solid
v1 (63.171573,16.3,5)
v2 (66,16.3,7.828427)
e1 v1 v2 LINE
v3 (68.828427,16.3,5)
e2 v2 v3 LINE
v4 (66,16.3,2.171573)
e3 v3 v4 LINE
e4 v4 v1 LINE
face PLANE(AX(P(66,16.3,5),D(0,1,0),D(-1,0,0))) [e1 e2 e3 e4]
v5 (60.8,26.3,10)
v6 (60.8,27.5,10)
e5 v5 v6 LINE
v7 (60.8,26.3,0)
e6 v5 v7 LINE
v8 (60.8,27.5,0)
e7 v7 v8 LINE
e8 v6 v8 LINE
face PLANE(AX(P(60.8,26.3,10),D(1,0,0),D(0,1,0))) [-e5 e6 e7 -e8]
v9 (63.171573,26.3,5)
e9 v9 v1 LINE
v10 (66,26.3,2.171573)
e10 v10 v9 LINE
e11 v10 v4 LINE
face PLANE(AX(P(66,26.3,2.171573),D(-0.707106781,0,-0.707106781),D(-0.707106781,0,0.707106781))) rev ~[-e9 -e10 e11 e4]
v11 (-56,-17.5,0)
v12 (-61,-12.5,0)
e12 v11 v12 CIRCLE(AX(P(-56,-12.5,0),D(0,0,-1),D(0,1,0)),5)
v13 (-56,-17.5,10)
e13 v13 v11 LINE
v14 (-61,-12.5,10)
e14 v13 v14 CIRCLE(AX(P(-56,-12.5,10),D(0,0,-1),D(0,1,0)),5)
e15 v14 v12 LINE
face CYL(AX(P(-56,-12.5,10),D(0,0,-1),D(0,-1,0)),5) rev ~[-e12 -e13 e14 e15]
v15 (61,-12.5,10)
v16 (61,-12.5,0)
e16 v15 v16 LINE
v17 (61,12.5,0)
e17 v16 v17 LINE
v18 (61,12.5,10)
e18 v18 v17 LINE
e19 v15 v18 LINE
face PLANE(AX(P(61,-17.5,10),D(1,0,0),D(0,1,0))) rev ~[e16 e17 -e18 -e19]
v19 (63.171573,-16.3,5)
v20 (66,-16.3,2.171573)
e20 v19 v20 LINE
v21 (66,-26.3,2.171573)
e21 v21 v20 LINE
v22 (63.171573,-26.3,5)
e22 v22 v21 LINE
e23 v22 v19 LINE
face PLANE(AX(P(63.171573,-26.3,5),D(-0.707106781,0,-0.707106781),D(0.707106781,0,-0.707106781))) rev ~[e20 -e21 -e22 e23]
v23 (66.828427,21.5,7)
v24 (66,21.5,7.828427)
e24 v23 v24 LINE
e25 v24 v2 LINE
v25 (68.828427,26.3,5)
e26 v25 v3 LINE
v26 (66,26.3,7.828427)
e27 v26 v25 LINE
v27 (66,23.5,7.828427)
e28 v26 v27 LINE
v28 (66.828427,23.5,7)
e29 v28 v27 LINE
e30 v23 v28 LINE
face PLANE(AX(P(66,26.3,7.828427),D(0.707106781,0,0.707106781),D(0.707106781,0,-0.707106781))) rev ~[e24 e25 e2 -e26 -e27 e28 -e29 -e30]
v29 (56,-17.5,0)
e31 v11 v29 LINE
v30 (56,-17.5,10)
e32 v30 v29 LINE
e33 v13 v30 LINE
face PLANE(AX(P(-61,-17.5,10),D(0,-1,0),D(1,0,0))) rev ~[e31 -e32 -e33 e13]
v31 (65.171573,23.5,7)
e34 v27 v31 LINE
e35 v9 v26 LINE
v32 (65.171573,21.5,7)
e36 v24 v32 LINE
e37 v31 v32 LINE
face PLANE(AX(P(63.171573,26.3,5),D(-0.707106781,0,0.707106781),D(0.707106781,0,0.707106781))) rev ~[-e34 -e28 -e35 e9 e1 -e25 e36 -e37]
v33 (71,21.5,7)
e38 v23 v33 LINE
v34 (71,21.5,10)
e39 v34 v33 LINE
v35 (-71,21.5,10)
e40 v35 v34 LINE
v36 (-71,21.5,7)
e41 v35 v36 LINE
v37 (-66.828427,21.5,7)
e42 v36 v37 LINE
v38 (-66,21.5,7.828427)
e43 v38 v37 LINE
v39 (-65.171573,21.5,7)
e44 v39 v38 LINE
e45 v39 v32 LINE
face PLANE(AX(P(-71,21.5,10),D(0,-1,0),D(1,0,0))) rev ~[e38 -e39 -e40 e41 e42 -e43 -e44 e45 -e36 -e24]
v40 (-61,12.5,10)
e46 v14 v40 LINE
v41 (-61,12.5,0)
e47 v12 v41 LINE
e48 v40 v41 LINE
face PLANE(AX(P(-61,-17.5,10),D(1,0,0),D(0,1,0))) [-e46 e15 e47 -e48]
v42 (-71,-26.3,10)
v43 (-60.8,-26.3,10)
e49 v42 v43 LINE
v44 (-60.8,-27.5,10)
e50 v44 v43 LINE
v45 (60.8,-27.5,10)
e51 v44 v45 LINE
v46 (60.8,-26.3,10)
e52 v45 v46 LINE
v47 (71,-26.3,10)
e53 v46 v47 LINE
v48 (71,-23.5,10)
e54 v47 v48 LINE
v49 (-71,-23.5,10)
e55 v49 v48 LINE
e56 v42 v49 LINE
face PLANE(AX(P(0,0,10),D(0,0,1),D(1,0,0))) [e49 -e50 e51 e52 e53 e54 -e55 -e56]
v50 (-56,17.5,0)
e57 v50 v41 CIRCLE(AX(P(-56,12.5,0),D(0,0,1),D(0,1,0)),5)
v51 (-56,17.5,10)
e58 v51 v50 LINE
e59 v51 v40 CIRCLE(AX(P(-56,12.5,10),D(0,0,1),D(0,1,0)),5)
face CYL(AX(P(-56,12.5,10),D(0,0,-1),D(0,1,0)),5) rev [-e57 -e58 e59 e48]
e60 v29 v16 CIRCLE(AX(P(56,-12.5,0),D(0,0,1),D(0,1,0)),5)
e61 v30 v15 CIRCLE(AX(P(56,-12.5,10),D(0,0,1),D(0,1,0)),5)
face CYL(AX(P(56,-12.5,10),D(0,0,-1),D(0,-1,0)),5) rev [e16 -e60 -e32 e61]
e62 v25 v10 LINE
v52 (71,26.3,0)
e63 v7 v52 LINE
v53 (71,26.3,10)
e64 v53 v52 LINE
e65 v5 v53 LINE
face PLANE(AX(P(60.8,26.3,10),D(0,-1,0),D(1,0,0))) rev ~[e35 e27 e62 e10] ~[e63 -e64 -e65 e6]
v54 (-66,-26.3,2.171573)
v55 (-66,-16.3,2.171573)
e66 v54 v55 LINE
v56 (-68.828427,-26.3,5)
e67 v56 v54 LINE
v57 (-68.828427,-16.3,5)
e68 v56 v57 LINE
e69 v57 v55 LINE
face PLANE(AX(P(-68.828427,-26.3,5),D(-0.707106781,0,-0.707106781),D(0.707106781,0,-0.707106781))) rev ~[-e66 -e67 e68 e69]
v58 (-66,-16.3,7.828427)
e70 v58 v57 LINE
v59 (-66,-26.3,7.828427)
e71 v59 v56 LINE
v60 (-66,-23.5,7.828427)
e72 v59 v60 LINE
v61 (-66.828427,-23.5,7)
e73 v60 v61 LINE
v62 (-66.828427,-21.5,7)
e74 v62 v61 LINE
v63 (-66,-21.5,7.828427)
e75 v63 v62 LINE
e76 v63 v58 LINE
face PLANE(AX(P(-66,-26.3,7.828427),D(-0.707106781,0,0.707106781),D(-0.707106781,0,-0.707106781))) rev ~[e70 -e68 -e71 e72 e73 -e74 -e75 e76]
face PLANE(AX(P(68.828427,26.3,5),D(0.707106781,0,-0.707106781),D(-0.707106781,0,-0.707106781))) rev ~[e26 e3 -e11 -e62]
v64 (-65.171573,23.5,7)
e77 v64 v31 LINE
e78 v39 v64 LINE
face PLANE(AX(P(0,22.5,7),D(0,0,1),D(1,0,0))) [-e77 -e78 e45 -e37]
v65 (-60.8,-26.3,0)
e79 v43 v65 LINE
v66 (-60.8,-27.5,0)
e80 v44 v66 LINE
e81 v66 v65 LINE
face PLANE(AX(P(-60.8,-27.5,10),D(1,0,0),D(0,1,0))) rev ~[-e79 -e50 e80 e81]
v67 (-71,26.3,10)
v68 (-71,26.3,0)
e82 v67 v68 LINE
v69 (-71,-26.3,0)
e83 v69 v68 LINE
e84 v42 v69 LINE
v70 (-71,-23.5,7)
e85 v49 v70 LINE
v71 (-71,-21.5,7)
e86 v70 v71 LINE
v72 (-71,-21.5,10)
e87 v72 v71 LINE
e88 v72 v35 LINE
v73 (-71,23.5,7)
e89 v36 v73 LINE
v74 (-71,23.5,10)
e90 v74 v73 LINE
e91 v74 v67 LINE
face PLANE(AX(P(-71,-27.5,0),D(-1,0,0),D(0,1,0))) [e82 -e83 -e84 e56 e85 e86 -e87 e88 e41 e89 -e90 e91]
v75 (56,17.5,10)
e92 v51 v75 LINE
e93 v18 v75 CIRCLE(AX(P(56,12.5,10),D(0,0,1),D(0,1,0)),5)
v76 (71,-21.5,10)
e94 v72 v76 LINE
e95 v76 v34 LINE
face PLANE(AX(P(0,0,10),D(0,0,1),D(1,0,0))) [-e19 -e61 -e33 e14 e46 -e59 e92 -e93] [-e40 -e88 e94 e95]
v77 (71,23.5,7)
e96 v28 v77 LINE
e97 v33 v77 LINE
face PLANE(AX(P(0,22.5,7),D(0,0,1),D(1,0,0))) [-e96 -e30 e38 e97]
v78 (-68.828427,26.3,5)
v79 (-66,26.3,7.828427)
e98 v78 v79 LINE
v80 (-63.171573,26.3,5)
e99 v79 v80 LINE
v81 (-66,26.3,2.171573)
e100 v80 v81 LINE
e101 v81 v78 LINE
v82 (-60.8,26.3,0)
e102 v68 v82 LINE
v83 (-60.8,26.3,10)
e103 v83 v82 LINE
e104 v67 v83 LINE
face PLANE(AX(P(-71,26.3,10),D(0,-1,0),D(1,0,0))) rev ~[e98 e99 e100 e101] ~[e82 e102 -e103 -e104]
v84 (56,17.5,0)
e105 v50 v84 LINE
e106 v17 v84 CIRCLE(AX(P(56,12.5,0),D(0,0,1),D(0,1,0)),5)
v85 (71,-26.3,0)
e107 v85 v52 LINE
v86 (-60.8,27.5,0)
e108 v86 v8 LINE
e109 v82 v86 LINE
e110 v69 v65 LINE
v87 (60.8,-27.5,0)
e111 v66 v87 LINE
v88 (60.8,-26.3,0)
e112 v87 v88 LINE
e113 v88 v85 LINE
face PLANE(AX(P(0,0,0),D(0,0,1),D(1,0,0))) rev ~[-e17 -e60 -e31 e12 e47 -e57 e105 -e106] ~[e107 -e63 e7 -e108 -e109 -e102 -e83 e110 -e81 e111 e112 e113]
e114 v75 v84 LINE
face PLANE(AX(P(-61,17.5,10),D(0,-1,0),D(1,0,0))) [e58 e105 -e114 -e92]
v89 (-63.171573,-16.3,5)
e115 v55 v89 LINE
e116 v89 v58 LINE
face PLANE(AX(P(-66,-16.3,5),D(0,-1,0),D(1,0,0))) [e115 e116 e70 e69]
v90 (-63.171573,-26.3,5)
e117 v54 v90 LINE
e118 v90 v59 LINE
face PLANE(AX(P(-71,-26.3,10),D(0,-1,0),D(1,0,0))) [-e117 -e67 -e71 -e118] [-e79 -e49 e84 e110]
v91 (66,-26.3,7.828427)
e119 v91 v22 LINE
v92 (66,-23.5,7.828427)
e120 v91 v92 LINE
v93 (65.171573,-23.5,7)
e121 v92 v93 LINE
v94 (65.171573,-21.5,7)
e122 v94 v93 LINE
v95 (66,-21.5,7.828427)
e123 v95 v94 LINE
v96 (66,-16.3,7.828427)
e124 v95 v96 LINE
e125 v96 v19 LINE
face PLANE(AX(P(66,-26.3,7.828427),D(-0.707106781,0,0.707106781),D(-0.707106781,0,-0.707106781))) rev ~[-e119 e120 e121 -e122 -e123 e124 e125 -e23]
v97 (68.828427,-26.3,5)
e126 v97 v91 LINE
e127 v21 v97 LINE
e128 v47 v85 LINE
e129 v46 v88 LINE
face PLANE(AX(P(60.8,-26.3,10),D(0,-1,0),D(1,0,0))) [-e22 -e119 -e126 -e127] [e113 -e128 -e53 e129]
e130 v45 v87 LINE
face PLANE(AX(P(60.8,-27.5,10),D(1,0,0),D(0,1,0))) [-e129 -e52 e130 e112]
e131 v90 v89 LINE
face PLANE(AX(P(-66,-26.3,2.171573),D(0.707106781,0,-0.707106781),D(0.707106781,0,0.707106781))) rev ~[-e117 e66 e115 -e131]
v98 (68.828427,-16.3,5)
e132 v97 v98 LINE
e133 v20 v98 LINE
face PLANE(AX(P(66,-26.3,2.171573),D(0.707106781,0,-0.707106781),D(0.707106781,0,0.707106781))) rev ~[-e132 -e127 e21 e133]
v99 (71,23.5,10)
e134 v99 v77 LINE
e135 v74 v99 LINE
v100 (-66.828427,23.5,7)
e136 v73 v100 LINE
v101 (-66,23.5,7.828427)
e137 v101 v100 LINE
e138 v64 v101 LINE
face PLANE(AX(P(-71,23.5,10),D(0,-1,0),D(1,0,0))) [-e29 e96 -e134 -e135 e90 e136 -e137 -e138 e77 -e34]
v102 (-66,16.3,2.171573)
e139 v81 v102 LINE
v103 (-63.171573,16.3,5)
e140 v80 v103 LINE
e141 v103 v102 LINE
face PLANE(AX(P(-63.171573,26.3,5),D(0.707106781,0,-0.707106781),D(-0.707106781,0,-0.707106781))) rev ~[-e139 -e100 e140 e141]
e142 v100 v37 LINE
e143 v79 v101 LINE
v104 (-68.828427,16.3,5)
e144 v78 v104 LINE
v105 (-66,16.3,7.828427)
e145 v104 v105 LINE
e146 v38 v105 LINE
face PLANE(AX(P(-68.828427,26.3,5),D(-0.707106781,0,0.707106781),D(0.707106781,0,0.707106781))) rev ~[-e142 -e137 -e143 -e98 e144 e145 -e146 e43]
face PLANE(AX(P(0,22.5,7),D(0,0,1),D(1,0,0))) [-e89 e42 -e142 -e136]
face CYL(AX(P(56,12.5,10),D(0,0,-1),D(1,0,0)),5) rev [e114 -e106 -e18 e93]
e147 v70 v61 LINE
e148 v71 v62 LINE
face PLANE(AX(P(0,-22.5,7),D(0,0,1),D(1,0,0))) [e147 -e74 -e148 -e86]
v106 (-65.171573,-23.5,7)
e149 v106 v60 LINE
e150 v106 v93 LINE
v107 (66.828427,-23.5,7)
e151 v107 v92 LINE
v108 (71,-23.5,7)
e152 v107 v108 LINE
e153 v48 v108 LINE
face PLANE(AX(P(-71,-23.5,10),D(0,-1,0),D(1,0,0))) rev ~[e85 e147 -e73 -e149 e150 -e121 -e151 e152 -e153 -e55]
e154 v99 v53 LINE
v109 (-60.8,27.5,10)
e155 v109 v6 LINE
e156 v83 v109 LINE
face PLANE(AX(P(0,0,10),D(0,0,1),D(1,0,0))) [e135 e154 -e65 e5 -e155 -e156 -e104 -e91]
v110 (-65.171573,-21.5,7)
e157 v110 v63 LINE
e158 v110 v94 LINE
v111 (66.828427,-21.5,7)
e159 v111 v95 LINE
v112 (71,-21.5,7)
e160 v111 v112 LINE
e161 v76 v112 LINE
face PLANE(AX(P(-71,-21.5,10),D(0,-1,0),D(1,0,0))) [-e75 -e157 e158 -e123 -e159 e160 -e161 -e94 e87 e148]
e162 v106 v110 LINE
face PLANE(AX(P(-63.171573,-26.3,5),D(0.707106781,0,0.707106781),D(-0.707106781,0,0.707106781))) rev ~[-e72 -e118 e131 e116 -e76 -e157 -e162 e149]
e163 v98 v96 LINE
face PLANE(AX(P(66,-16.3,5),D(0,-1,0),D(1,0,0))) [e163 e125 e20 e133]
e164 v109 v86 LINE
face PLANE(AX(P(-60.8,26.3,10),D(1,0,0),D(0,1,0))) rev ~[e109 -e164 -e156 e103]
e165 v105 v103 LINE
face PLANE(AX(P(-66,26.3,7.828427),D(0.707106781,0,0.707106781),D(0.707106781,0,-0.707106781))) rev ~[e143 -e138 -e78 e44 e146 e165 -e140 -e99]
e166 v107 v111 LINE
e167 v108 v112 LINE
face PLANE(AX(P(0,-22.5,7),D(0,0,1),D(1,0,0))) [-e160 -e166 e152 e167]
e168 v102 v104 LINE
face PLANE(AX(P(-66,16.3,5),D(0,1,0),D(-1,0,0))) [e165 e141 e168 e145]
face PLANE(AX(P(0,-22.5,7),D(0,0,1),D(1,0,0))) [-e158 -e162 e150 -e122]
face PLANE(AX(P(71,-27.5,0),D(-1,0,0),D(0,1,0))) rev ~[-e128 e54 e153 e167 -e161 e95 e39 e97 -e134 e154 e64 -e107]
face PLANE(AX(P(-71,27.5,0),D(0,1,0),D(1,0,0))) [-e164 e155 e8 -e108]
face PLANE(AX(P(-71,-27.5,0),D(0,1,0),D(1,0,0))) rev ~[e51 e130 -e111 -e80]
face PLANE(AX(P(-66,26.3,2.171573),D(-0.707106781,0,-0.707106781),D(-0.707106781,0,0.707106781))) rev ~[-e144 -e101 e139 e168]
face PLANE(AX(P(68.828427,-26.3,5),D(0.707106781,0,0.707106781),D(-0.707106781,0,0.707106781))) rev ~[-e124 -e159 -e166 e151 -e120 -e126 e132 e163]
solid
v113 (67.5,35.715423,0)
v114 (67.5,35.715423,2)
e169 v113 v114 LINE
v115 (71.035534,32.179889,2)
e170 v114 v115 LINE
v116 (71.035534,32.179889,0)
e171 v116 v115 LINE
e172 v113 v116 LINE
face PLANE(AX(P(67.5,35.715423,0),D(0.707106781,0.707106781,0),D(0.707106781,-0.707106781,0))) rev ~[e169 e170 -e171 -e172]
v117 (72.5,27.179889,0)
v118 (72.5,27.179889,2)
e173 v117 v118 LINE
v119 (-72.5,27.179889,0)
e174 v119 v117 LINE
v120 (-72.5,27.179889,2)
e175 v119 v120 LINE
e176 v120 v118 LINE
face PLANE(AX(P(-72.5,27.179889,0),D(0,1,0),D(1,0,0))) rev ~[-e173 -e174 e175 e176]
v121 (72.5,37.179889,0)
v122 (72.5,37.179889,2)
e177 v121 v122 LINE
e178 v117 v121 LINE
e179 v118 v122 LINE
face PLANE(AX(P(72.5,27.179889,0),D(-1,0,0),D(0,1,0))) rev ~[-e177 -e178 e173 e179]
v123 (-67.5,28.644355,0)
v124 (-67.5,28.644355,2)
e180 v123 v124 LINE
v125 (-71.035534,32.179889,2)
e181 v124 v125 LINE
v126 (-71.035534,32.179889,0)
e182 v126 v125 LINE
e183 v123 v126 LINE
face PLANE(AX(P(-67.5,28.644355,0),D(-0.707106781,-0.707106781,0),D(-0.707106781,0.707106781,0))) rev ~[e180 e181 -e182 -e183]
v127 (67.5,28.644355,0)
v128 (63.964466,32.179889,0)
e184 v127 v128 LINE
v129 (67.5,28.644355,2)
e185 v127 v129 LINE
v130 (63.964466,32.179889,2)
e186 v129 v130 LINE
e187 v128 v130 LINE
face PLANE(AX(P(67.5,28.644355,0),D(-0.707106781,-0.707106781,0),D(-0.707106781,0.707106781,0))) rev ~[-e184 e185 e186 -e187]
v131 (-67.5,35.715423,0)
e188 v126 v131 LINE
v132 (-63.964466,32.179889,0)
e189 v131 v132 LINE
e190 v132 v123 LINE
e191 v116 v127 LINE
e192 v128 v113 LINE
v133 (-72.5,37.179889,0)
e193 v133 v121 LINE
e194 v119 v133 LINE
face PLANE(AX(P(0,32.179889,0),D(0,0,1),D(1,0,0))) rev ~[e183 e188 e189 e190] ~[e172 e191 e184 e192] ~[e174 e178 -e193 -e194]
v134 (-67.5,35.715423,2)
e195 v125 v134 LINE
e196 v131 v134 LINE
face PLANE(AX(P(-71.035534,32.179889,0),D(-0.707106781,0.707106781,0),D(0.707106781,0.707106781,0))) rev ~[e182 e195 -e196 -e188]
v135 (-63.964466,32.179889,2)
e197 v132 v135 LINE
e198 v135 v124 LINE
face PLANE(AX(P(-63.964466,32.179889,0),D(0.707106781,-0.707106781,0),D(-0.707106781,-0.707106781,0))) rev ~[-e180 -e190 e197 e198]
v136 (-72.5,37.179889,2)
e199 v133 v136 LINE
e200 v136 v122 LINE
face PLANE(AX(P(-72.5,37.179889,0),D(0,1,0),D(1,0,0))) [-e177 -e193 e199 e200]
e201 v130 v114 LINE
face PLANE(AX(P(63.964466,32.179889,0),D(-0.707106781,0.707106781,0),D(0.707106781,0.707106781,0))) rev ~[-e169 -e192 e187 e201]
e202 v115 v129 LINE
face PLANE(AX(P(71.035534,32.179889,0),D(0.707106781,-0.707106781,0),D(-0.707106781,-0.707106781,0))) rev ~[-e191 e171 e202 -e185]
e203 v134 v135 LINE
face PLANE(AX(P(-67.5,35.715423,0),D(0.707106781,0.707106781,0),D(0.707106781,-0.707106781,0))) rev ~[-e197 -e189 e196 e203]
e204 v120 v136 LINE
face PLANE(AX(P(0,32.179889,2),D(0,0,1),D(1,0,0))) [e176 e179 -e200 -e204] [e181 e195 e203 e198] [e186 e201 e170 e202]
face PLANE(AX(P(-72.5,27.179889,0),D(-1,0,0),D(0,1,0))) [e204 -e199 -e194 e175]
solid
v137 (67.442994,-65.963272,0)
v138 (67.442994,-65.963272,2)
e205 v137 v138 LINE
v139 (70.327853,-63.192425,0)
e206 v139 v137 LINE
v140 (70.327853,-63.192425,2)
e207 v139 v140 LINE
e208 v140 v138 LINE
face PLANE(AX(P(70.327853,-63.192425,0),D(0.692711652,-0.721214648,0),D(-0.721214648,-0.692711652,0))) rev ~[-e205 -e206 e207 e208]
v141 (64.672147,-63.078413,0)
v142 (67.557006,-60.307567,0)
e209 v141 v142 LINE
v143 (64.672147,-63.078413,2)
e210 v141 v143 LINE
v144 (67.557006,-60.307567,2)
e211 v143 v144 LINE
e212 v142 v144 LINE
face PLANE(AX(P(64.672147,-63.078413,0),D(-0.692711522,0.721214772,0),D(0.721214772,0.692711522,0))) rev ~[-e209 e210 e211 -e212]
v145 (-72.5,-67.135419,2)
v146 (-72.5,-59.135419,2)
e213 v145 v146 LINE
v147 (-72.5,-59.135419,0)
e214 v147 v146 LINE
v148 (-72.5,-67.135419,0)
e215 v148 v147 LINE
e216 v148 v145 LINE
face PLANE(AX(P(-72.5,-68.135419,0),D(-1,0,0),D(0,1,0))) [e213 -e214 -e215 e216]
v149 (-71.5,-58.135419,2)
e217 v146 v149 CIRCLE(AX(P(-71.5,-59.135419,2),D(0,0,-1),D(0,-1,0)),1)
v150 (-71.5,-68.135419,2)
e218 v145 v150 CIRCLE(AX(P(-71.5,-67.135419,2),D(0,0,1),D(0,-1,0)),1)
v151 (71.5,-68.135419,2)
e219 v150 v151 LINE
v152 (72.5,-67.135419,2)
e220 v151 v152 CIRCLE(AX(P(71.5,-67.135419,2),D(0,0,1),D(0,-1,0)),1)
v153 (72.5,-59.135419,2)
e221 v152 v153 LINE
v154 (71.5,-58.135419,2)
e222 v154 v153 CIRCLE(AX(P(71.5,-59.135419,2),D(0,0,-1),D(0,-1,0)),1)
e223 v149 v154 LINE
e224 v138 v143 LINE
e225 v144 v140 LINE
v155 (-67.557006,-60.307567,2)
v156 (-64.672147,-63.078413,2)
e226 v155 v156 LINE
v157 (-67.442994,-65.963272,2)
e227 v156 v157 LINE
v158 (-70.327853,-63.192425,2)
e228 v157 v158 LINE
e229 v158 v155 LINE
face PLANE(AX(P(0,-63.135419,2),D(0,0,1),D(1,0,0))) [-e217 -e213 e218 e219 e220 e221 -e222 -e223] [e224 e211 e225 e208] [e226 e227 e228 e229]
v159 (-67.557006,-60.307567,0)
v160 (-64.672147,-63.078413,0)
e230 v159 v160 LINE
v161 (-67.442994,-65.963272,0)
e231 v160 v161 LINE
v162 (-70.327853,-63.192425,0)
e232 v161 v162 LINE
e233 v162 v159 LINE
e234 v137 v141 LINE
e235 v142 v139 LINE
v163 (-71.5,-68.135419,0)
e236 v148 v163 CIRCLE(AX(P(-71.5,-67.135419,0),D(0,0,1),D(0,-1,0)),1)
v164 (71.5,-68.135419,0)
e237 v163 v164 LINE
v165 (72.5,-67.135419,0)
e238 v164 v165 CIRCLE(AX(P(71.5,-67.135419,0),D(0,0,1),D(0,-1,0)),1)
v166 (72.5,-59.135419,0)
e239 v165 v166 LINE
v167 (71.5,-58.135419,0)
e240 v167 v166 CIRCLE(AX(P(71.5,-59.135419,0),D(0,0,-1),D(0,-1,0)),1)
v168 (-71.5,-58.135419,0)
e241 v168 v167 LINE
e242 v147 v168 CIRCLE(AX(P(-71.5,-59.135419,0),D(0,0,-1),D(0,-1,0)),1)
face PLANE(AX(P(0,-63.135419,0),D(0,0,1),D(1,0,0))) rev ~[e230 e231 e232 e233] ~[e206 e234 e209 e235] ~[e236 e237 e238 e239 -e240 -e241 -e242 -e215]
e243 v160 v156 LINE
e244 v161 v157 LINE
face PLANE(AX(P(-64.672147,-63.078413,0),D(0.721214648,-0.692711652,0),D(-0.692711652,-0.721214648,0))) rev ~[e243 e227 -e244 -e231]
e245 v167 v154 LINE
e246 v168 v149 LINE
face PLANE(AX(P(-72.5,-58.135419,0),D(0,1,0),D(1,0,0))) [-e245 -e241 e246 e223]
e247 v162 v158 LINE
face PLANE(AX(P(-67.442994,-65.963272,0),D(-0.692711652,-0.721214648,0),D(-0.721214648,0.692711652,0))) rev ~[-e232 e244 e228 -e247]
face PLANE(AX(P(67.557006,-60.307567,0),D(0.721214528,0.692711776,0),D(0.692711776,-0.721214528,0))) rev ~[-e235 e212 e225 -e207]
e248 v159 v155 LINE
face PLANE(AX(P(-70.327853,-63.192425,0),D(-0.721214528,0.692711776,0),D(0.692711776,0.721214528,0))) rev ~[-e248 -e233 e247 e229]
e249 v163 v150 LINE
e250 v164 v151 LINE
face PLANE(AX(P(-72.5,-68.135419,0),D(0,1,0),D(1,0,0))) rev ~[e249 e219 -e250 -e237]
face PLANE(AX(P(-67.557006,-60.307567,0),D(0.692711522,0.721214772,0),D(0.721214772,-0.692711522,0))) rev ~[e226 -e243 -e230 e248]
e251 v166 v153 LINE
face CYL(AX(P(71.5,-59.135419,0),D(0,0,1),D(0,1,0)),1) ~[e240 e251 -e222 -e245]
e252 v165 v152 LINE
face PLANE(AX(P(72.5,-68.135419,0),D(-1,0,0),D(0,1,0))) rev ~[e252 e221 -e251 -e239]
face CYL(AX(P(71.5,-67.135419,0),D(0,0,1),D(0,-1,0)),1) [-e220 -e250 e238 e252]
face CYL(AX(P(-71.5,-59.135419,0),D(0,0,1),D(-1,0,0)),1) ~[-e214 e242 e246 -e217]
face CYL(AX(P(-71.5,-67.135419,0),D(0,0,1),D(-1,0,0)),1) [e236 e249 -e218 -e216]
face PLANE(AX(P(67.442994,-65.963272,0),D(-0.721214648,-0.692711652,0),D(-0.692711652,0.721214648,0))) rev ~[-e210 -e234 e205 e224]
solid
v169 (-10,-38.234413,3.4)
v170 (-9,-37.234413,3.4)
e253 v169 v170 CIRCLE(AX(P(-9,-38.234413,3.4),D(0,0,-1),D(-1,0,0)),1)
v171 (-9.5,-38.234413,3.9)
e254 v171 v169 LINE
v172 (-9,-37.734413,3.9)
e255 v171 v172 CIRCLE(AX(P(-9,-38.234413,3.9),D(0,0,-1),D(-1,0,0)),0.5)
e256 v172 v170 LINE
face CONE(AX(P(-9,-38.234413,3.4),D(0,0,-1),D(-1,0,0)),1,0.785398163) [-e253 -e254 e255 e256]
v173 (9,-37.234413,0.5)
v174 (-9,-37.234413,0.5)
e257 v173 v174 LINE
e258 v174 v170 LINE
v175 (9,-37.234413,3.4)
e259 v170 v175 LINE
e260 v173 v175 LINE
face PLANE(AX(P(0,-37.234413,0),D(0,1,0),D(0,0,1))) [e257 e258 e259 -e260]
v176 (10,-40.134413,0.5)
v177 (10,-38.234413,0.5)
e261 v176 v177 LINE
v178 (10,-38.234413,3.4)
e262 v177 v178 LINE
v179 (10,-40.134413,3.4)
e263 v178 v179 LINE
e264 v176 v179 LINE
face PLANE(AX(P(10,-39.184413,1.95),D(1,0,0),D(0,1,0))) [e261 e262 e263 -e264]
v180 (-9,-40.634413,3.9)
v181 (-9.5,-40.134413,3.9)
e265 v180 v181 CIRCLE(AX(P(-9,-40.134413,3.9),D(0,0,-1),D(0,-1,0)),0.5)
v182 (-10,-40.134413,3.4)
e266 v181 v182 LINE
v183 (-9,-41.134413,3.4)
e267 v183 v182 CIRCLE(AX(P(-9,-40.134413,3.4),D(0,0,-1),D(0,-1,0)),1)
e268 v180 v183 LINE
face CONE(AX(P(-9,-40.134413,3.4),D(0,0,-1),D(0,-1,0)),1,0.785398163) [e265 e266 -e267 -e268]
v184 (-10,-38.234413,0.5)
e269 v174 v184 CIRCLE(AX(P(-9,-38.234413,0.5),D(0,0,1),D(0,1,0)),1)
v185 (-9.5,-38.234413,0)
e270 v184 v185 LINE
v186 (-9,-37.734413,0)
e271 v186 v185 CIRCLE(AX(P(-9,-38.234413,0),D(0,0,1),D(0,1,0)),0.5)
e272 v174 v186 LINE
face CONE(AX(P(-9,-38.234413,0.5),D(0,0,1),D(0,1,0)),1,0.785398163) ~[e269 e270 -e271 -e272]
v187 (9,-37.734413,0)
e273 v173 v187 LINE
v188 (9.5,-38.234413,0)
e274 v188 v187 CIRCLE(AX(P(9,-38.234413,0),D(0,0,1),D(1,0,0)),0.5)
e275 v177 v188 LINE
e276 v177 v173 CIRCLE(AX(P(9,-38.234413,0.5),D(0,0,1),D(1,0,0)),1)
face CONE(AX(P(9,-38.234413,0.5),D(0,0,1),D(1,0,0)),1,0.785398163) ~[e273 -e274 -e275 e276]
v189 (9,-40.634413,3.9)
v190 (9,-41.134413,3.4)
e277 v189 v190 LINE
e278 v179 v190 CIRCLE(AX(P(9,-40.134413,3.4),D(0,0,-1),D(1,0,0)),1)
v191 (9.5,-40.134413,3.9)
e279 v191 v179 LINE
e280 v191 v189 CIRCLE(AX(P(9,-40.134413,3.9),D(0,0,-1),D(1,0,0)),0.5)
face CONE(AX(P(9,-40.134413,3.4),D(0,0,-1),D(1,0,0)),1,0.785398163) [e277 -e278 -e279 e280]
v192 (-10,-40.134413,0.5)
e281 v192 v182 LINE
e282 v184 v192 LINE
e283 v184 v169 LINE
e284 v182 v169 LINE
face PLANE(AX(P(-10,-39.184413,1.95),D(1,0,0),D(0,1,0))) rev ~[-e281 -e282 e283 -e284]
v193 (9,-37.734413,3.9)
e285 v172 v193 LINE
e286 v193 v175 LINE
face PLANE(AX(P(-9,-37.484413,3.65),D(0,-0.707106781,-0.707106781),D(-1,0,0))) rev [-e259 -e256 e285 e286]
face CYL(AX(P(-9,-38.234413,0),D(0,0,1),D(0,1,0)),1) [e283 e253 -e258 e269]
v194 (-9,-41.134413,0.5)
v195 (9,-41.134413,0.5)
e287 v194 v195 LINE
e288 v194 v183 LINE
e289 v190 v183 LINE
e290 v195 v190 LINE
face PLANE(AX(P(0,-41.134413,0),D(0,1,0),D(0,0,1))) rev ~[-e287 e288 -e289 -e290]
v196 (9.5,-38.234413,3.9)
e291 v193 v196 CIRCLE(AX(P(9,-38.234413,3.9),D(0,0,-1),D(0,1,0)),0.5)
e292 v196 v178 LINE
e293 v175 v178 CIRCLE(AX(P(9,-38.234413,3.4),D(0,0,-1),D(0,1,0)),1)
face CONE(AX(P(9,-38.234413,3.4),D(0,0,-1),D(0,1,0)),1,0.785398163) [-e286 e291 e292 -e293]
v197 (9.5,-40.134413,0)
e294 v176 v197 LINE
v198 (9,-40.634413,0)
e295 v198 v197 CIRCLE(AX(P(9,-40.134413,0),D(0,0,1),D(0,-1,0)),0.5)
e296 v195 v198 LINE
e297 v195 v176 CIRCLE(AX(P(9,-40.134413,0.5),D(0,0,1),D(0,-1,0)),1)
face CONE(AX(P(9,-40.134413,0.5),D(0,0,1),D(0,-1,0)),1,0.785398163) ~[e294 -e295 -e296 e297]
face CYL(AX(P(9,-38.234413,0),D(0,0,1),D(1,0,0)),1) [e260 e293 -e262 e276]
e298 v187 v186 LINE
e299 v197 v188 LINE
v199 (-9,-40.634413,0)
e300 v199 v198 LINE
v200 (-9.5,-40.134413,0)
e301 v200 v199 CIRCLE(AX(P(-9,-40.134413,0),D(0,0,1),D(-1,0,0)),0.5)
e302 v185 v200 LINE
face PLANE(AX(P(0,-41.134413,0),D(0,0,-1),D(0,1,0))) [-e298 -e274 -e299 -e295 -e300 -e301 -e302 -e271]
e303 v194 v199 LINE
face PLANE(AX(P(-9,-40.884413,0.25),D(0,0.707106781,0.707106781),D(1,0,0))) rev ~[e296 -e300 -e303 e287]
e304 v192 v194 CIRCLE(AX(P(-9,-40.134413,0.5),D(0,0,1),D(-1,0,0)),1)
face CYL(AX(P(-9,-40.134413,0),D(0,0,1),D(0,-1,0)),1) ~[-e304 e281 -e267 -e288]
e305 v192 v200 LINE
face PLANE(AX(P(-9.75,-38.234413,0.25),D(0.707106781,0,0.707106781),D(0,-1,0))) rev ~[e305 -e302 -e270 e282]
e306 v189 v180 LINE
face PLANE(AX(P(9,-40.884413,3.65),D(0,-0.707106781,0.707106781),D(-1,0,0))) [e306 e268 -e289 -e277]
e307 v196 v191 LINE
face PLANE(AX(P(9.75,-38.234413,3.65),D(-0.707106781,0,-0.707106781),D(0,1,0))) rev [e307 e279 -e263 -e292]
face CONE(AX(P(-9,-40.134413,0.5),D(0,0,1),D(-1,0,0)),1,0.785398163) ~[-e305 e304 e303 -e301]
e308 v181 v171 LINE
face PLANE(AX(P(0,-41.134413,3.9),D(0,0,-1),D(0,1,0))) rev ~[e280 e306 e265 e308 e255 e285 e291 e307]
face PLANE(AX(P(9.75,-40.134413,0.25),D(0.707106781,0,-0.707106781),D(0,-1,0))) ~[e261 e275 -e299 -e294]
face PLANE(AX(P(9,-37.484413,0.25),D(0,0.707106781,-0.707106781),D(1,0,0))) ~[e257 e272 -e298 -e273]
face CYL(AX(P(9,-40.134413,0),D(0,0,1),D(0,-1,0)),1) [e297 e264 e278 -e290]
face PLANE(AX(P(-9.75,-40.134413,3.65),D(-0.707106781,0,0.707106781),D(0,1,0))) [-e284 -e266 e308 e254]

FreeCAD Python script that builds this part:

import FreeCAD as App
import Part
import Sketcher
Q = App.Units.Quantity


def edges_at(feature, points):
    """Names of the edges that pass closest to the given points."""
    edges = feature.Shape.Edges
    near = lambda p: min(range(len(edges)), key=lambda i: edges[i].distToShape(Part.Vertex(*p))[0])
    return sorted({f"Edge{near(p) + 1}" for p in points})

doc = App.newDocument("Part")
params = doc.addObject("Spreadsheet::Sheet", "Params")
for row, (alias, value) in enumerate([
    ("sketch1_width", "142 mm"),
    ("sketch1_height", "55 mm"),
    ("pad1_length", "10 mm"),
    ("sketch2_width", "142 mm"),
    ("sketch2_height", "2 mm"),
    ("pocket1_length", "3 mm"),
    ("sketch3_width", "122 mm"),
    ("sketch3_height", "35 mm"),
    ("sketch3_width2", "10.2 mm"),
    ("sketch3_height2", "1.2 mm"),
    ("sketch4_length", "4 mm"),
    ("pocket3_length", "10 mm"),
    ("fillet_radius", "5 mm"),
    ("sketch5_length", "4 mm"),
    ("pocket4_length", "10 mm"),
    ("sketch6_width", "3.9 mm"),
    ("pad2_length", "20 mm"),
    ("fillet2_radius", "1 mm"),
    ("chamfer_size", "0.5 mm"),
    ("sketch7_width", "145 mm"),
    ("sketch7_height", "10 mm"),
    ("sketch7_length", "5 mm"),
    ("pad3_length", "2 mm"),
    ("sketch8_width", "145 mm"),
    ("sketch8_height", "10 mm"),
    ("sketch8_length", "4 mm"),
    ("pad4_length", "2 mm"),
    ("fillet3_radius", "1 mm"),
], start=1):
    params.set(f"A{row}", alias)
    params.set(f"B{row}", "=" + value)
    params.setAlias(f"B{row}", alias)

body = doc.addObject("PartDesign::Body", "Body")

# Sketch on XY plane
sketch1 = doc.addObject("Sketcher::SketchObject", "Sketch")
body.addObject(sketch1)
sketch1.AttachmentSupport = (doc.XY_Plane, [""])
sketch1.MapMode = "FlatFace"
sketch1.addGeometry([
    Part.LineSegment(App.Vector(-71, 27.5, 0), App.Vector(-71, -27.5, 0)),
    Part.LineSegment(App.Vector(-71, -27.5, 0), App.Vector(71, -27.5, 0)),
    Part.LineSegment(App.Vector(71, -27.5, 0), App.Vector(71, 27.5, 0)),
    Part.LineSegment(App.Vector(71, 27.5, 0), App.Vector(-71, 27.5, 0)),
], False)
sketch1.addConstraint([
    Sketcher.Constraint("Coincident", 0, 2, 1, 1),
    Sketcher.Constraint("Coincident", 1, 2, 2, 1),
    Sketcher.Constraint("Coincident", 2, 2, 3, 1),
    Sketcher.Constraint("Coincident", 3, 2, 0, 1),
    Sketcher.Constraint("Vertical", 0),
    Sketcher.Constraint("Horizontal", 1),
    Sketcher.Constraint("Vertical", 2),
    Sketcher.Constraint("Horizontal", 3),
    Sketcher.Constraint("Symmetric", 0, 2, 2, 2, -1, 1),
    Sketcher.Constraint("DistanceX", 1, 1, 1, 2, Q("142 mm")),
    Sketcher.Constraint("DistanceY", 0, 2, 0, 1, Q("55 mm")),
])
sketch1.setExpression("Constraints[9]", "Params.sketch1_width")
sketch1.setExpression("Constraints[10]", "Params.sketch1_height")
pad1 = doc.addObject("PartDesign::Pad", "Pad")
body.addObject(pad1)
pad1.Profile = sketch1
pad1.setExpression("Length", "Params.pad1_length")

# Sketch on XY plane
sketch2 = doc.addObject("Sketcher::SketchObject", "Sketch001")
body.addObject(sketch2)
sketch2.AttachmentSupport = (doc.XY_Plane, [""])
sketch2.MapMode = "FlatFace"
sketch2.AttachmentOffset = App.Placement(App.Vector(0, 0, 10), App.Rotation())
sketch2.addGeometry([
    Part.LineSegment(App.Vector(-71, 23.5, 0), App.Vector(-71, 21.5, 0)),  # 0
    Part.LineSegment(App.Vector(-71, 21.5, 0), App.Vector(71, 21.5, 0)),  # 1
    Part.LineSegment(App.Vector(71, 21.5, 0), App.Vector(71, 23.5, 0)),  # 2
    Part.LineSegment(App.Vector(71, 23.5, 0), App.Vector(-71, 23.5, 0)),  # 3
    Part.LineSegment(App.Vector(-71, -21.5, 0), App.Vector(-71, -23.5, 0)),  # 4
    Part.LineSegment(App.Vector(-71, -23.5, 0), App.Vector(71, -23.5, 0)),  # 5
    Part.LineSegment(App.Vector(71, -23.5, 0), App.Vector(71, -21.5, 0)),  # 6
    Part.LineSegment(App.Vector(71, -21.5, 0), App.Vector(-71, -21.5, 0)),  # 7
], False)
sketch2.addConstraint([
    Sketcher.Constraint("Coincident", 0, 2, 1, 1),
    Sketcher.Constraint("Coincident", 1, 2, 2, 1),
    Sketcher.Constraint("Coincident", 2, 2, 3, 1),
    Sketcher.Constraint("Coincident", 3, 2, 0, 1),
    Sketcher.Constraint("Coincident", 4, 2, 5, 1),
    Sketcher.Constraint("Coincident", 5, 2, 6, 1),
    Sketcher.Constraint("Coincident", 6, 2, 7, 1),
    Sketcher.Constraint("Coincident", 7, 2, 4, 1),
    Sketcher.Constraint("Vertical", 0),
    Sketcher.Constraint("Horizontal", 1),
    Sketcher.Constraint("Vertical", 2),
    Sketcher.Constraint("Horizontal", 3),
    Sketcher.Constraint("Vertical", 4),
    Sketcher.Constraint("Horizontal", 5),
    Sketcher.Constraint("Vertical", 6),
    Sketcher.Constraint("Horizontal", 7),
    Sketcher.Constraint("Symmetric", 2, 2, 4, 2, -1, 1),
    Sketcher.Constraint("Symmetric", 0, 2, 6, 2, -1, 1),
    Sketcher.Constraint("Vertical", 3, 2, 4, 2),
    Sketcher.Constraint("DistanceX", 1, 1, 1, 2, Q("142 mm")),
    Sketcher.Constraint("DistanceY", 0, 2, 0, 1, Q("2 mm")),
    Sketcher.Constraint("DistanceY", 4, 2, 0, 2, Q("45 mm")),
])
sketch2.setExpression("Constraints[19]", "Params.sketch2_width")
sketch2.setExpression("Constraints[20]", "Params.sketch2_height")
pocket1 = doc.addObject("PartDesign::Pocket", "Pocket")
body.addObject(pocket1)
pocket1.Profile = sketch2
pocket1.setExpression("Length", "Params.pocket1_length")

# Sketch on XY plane
sketch3 = doc.addObject("Sketcher::SketchObject", "Sketch002")
body.addObject(sketch3)
sketch3.AttachmentSupport = (doc.XY_Plane, [""])
sketch3.MapMode = "FlatFace"
sketch3.AttachmentOffset = App.Placement(App.Vector(0, 0, 10), App.Rotation())
sketch3.addGeometry([
    Part.LineSegment(App.Vector(-61, 17.5, 0), App.Vector(-61, -17.5, 0)),  # 0
    Part.LineSegment(App.Vector(-61, -17.5, 0), App.Vector(61, -17.5, 0)),  # 1
    Part.LineSegment(App.Vector(61, -17.5, 0), App.Vector(61, 17.5, 0)),  # 2
    Part.LineSegment(App.Vector(61, 17.5, 0), App.Vector(-61, 17.5, 0)),  # 3
    Part.LineSegment(App.Vector(-71, -26.3, 0), App.Vector(-71, -27.5, 0)),  # 4
    Part.LineSegment(App.Vector(-71, -27.5, 0), App.Vector(-60.8, -27.5, 0)),  # 5
    Part.LineSegment(App.Vector(-60.8, -27.5, 0), App.Vector(-60.8, -26.3, 0)),  # 6
    Part.LineSegment(App.Vector(-60.8, -26.3, 0), App.Vector(-71, -26.3, 0)),  # 7
    Part.LineSegment(App.Vector(-71, 27.5, 0), App.Vector(-71, 26.3, 0)),  # 8
    Part.LineSegment(App.Vector(-71, 26.3, 0), App.Vector(-60.8, 26.3, 0)),  # 9
    Part.LineSegment(App.Vector(-60.8, 26.3, 0), App.Vector(-60.8, 27.5, 0)),  # 10
    Part.LineSegment(App.Vector(-60.8, 27.5, 0), App.Vector(-71, 27.5, 0)),  # 11
    Part.LineSegment(App.Vector(60.8, 27.5, 0), App.Vector(60.8, 26.3, 0)),  # 12
    Part.LineSegment(App.Vector(60.8, 26.3, 0), App.Vector(71, 26.3, 0)),  # 13
    Part.LineSegment(App.Vector(71, 26.3, 0), App.Vector(71, 27.5, 0)),  # 14
    Part.LineSegment(App.Vector(71, 27.5, 0), App.Vector(60.8, 27.5, 0)),  # 15
    Part.LineSegment(App.Vector(60.8, -26.3, 0), App.Vector(60.8, -27.5, 0)),  # 16
    Part.LineSegment(App.Vector(60.8, -27.5, 0), App.Vector(71, -27.5, 0)),  # 17
    Part.LineSegment(App.Vector(71, -27.5, 0), App.Vector(71, -26.3, 0)),  # 18
    Part.LineSegment(App.Vector(71, -26.3, 0), App.Vector(60.8, -26.3, 0)),  # 19
], False)
sketch3.addConstraint([
    Sketcher.Constraint("Coincident", 0, 2, 1, 1),
    Sketcher.Constraint("Coincident", 1, 2, 2, 1),
    Sketcher.Constraint("Coincident", 2, 2, 3, 1),
    Sketcher.Constraint("Coincident", 3, 2, 0, 1),
    Sketcher.Constraint("Coincident", 4, 2, 5, 1),
    Sketcher.Constraint("Coincident", 5, 2, 6, 1),
    Sketcher.Constraint("Coincident", 6, 2, 7, 1),
    Sketcher.Constraint("Coincident", 7, 2, 4, 1),
    Sketcher.Constraint("Coincident", 8, 2, 9, 1),
    Sketcher.Constraint("Coincident", 9, 2, 10, 1),
    Sketcher.Constraint("Coincident", 10, 2, 11, 1),
    Sketcher.Constraint("Coincident", 11, 2, 8, 1),
    Sketcher.Constraint("Coincident", 12, 2, 13, 1),
    Sketcher.Constraint("Coincident", 13, 2, 14, 1),
    Sketcher.Constraint("Coincident", 14, 2, 15, 1),
    Sketcher.Constraint("Coincident", 15, 2, 12, 1),
    Sketcher.Constraint("Coincident", 16, 2, 17, 1),
    Sketcher.Constraint("Coincident", 17, 2, 18, 1),
    Sketcher.Constraint("Coincident", 18, 2, 19, 1),
    Sketcher.Constraint("Coincident", 19, 2, 16, 1),
    Sketcher.Constraint("Vertical", 0),
    Sketcher.Constraint("Horizontal", 1),
    Sketcher.Constraint("Vertical", 2),
    Sketcher.Constraint("Horizontal", 3),
    Sketcher.Constraint("Vertical", 4),
    Sketcher.Constraint("Horizontal", 5),
    Sketcher.Constraint("Vertical", 6),
    Sketcher.Constraint("Horizontal", 7),
    Sketcher.Constraint("Vertical", 8),
    Sketcher.Constraint("Horizontal", 9),
    Sketcher.Constraint("Vertical", 10),
    Sketcher.Constraint("Horizontal", 11),
    Sketcher.Constraint("Vertical", 12),
    Sketcher.Constraint("Horizontal", 13),
    Sketcher.Constraint("Vertical", 14),
    Sketcher.Constraint("Horizontal", 15),
    Sketcher.Constraint("Vertical", 16),
    Sketcher.Constraint("Horizontal", 17),
    Sketcher.Constraint("Vertical", 18),
    Sketcher.Constraint("Horizontal", 19),
    Sketcher.Constraint("Symmetric", 0, 2, 2, 2, -1, 1),
    Sketcher.Constraint("Symmetric", 6, 2, 12, 2, -1, 1),
    Sketcher.Constraint("Symmetric", 4, 2, 14, 2, -1, 1),
    Sketcher.Constraint("Symmetric", 10, 2, 16, 2, -1, 1),
    Sketcher.Constraint("Symmetric", 8, 2, 18, 2, -1, 1),
    Sketcher.Constraint("Symmetric", 9, 2, 12, 2, -2),
    Sketcher.Constraint("Symmetric", 11, 2, 14, 2, -2),
    Sketcher.Constraint("DistanceX", 1, 1, 1, 2, Q("122 mm")),
    Sketcher.Constraint("DistanceY", 0, 2, 0, 1, Q("35 mm")),
    Sketcher.Constraint("DistanceX", 5, 1, 5, 2, Q("10.2 mm")),
    Sketcher.Constraint("DistanceY", 4, 2, 4, 1, Q("1.2 mm")),
    Sketcher.Constraint("DistanceX", 4, 2, -1, 1, Q("71 mm")),
    Sketcher.Constraint("DistanceY", 4, 2, 0, 2, Q("10 mm")),
])
sketch3.setExpression("Constraints[47]", "Params.sketch3_width")
sketch3.setExpression("Constraints[48]", "Params.sketch3_height")
sketch3.setExpression("Constraints[49]", "Params.sketch3_width2")
sketch3.setExpression("Constraints[50]", "Params.sketch3_height2")
pocket2 = doc.addObject("PartDesign::Pocket", "Pocket001")
body.addObject(pocket2)
pocket2.Profile = sketch3
pocket2.Type = "ThroughAll"

# Sketch on XZ plane
sketch4 = doc.addObject("Sketcher::SketchObject", "Sketch003")
body.addObject(sketch4)
sketch4.AttachmentSupport = (doc.XZ_Plane, [""])
sketch4.MapMode = "FlatFace"
sketch4.AttachmentOffset = App.Placement(App.Vector(0, 0, 26.3), App.Rotation())
sketch4.addGeometry([
    Part.LineSegment(App.Vector(-66, 2.171573, 0), App.Vector(-63.171573, 5, 0)),  # 0
    Part.LineSegment(App.Vector(-63.171573, 5, 0), App.Vector(-66, 7.828427, 0)),  # 1
    Part.LineSegment(App.Vector(-66, 7.828427, 0), App.Vector(-68.828427, 5, 0)),  # 2
    Part.LineSegment(App.Vector(-68.828427, 5, 0), App.Vector(-66, 2.171573, 0)),  # 3
    Part.LineSegment(App.Vector(66, 7.828427, 0), App.Vector(63.171573, 5, 0)),  # 4
    Part.LineSegment(App.Vector(63.171573, 5, 0), App.Vector(66, 2.171573, 0)),  # 5
    Part.LineSegment(App.Vector(66, 2.171573, 0), App.Vector(68.828427, 5, 0)),  # 6
    Part.LineSegment(App.Vector(68.828427, 5, 0), App.Vector(66, 7.828427, 0)),  # 7
], False)
sketch4.addConstraint([
    Sketcher.Constraint("Coincident", 0, 2, 1, 1),
    Sketcher.Constraint("Coincident", 1, 2, 2, 1),
    Sketcher.Constraint("Coincident", 2, 2, 3, 1),
    Sketcher.Constraint("Coincident", 3, 2, 0, 1),
    Sketcher.Constraint("Coincident", 4, 2, 5, 1),
    Sketcher.Constraint("Coincident", 5, 2, 6, 1),
    Sketcher.Constraint("Coincident", 6, 2, 7, 1),
    Sketcher.Constraint("Coincident", 7, 2, 4, 1),
    Sketcher.Constraint("Symmetric", 0, 2, 4, 2, -2),
    Sketcher.Constraint("Symmetric", 3, 2, 5, 2, -2),
    Sketcher.Constraint("Symmetric", 2, 2, 6, 2, -2),
    Sketcher.Constraint("Symmetric", 1, 2, 7, 2, -2),
    Sketcher.Constraint("Perpendicular", 0, 1),
    Sketcher.Constraint("Perpendicular", 1, 2),
    Sketcher.Constraint("Perpendicular", 2, 3),
    Sketcher.Constraint("Perpendicular", 3, 4),
    Sketcher.Constraint("Horizontal", 0, 2, 2, 2),
    Sketcher.Constraint("Distance", 0, Q("4 mm")),
    Sketcher.Constraint("DistanceY", -1, 1, 0, 2, Q("5 mm")),
    Sketcher.Constraint("DistanceX", 1, 2, -1, 1, Q("66 mm")),
])
sketch4.setExpression("Constraints[17]", "Params.sketch4_length")
pocket3 = doc.addObject("PartDesign::Pocket", "Pocket002")
body.addObject(pocket3)
pocket3.Profile = sketch4
pocket3.setExpression("Length", "Params.pocket3_length")
doc.recompute()

fillet = doc.addObject("PartDesign::Fillet", "Fillet")
body.addObject(fillet)
fillet.Base = (pocket3, edges_at(pocket3, [
    (-61, -17.5, 5),
    (-61, 17.5, 5),
    (61, 17.5, 5),
    (61, -17.5, 5),
]))
fillet.setExpression("Radius", "Params.fillet_radius")

# Sketch on XZ plane
sketch5 = doc.addObject("Sketcher::SketchObject", "Sketch004")
body.addObject(sketch5)
sketch5.AttachmentSupport = (doc.XZ_Plane, [""])
sketch5.MapMode = "FlatFace"
sketch5.AttachmentOffset = App.Placement(App.Vector(0, 0, -26.3), App.Rotation())
sketch5.addGeometry([
    Part.LineSegment(App.Vector(-68.828427, 5, 0), App.Vector(-66, 7.828427, 0)),  # 0
    Part.LineSegment(App.Vector(-66, 7.828427, 0), App.Vector(-63.171573, 5, 0)),  # 1
    Part.LineSegment(App.Vector(-63.171573, 5, 0), App.Vector(-66, 2.171573, 0)),  # 2
    Part.LineSegment(App.Vector(-66, 2.171573, 0), App.Vector(-68.828427, 5, 0)),  # 3
    Part.LineSegment(App.Vector(66, 7.828427, 0), App.Vector(68.828427, 5, 0)),  # 4
    Part.LineSegment(App.Vector(68.828427, 5, 0), App.Vector(66, 2.171573, 0)),  # 5
    Part.LineSegment(App.Vector(66, 2.171573, 0), App.Vector(63.171573, 5, 0)),  # 6
    Part.LineSegment(App.Vector(63.171573, 5, 0), App.Vector(66, 7.828427, 0)),  # 7
], False)
sketch5.addConstraint([
    Sketcher.Constraint("Coincident", 0, 2, 1, 1),
    Sketcher.Constraint("Coincident", 1, 2, 2, 1),
    Sketcher.Constraint("Coincident", 2, 2, 3, 1),
    Sketcher.Constraint("Coincident", 3, 2, 0, 1),
    Sketcher.Constraint("Coincident", 4, 2, 5, 1),
    Sketcher.Constraint("Coincident", 5, 2, 6, 1),
    Sketcher.Constraint("Coincident", 6, 2, 7, 1),
    Sketcher.Constraint("Coincident", 7, 2, 4, 1),
    Sketcher.Constraint("Symmetric", 3, 2, 4, 2, -2),
    Sketcher.Constraint("Symmetric", 2, 2, 5, 2, -2),
    Sketcher.Constraint("Symmetric", 1, 2, 6, 2, -2),
    Sketcher.Constraint("Symmetric", 0, 2, 7, 2, -2),
    Sketcher.Constraint("Perpendicular", 0, 1),
    Sketcher.Constraint("Perpendicular", 1, 2),
    Sketcher.Constraint("Perpendicular", 2, 3),
    Sketcher.Constraint("Parallel", 3, 4),
    Sketcher.Constraint("Horizontal", 1, 2, 3, 2),
    Sketcher.Constraint("Distance", 0, Q("4 mm")),
    Sketcher.Constraint("DistanceX", 0, 2, -1, 1, Q("66 mm")),
    Sketcher.Constraint("DistanceY", -1, 1, 1, 2, Q("5 mm")),
])
sketch5.setExpression("Constraints[17]", "Params.sketch5_length")
pocket4 = doc.addObject("PartDesign::Pocket", "Pocket003")
body.addObject(pocket4)
pocket4.Profile = sketch5
pocket4.setExpression("Length", "Params.pocket4_length")
pocket4.Reversed = True
body2 = doc.addObject("PartDesign::Body", "Body001")

# Sketch on YZ plane
sketch6 = doc.addObject("Sketcher::SketchObject", "Sketch005")
body2.addObject(sketch6)
sketch6.AttachmentSupport = (doc.getObject("YZ_Plane001"), [""])
sketch6.MapMode = "FlatFace"
sketch6.addGeometry([
    Part.LineSegment(App.Vector(-41.134413, 3.9, 0), App.Vector(-41.134413, 0, 0)),
    Part.LineSegment(App.Vector(-41.134413, 0, 0), App.Vector(-37.234413, 0, 0)),
    Part.LineSegment(App.Vector(-37.234413, 0, 0), App.Vector(-37.234413, 3.9, 0)),
    Part.LineSegment(App.Vector(-37.234413, 3.9, 0), App.Vector(-41.134413, 3.9, 0)),
], False)
sketch6.addConstraint([
    Sketcher.Constraint("Coincident", 0, 2, 1, 1),
    Sketcher.Constraint("Coincident", 1, 2, 2, 1),
    Sketcher.Constraint("Coincident", 2, 2, 3, 1),
    Sketcher.Constraint("Coincident", 3, 2, 0, 1),
    Sketcher.Constraint("Vertical", 0),
    Sketcher.Constraint("Horizontal", 1),
    Sketcher.Constraint("Vertical", 2),
    Sketcher.Constraint("Horizontal", 3),
    Sketcher.Constraint("PointOnObject", 0, 2, -1),
    Sketcher.Constraint("Equal", 3, 0),
    Sketcher.Constraint("DistanceX", 1, 1, 1, 2, Q("3.9 mm")),
    Sketcher.Constraint("DistanceX", 0, 2, -1, 1, Q("41.134413 mm")),
])
sketch6.setExpression("Constraints[10]", "Params.sketch6_width")
pad2 = doc.addObject("PartDesign::Pad", "Pad001")
body2.addObject(pad2)
pad2.Profile = sketch6
pad2.setExpression("Length", "Params.pad2_length")
pad2.Midplane = True
doc.recompute()

fillet2 = doc.addObject("PartDesign::Fillet", "Fillet001")
body2.addObject(fillet2)
fillet2.Base = (pad2, edges_at(pad2, [
    (10, -41.134, 1.95),
    (10, -37.234, 1.95),
    (-10, -41.134, 1.95),
    (-10, -37.234, 1.95),
]))
fillet2.setExpression("Radius", "Params.fillet2_radius")
doc.recompute()

chamfer = doc.addObject("PartDesign::Chamfer", "Chamfer")
body2.addObject(chamfer)
chamfer.Base = (fillet2, edges_at(fillet2, [
    (-10, -39.184, 3.9),
    (-9.707, -37.527, 3.9),
    (-9.707, -40.842, 3.9),
    (0, -37.234, 3.9),
    (0, -41.134, 3.9),
    (9.707, -37.527, 3.9),
    (9.707, -40.842, 3.9),
    (10, -39.184, 3.9),
    (0, -41.134, 0),
    (-9.707, -40.842, 0),
    (9.707, -40.842, 0),
    (-10, -39.184, 0),
    (10, -39.184, 0),
    (-9.707, -37.527, 0),
    (9.707, -37.527, 0),
    (0, -37.234, 0),
]))
chamfer.setExpression("Size", "Params.chamfer_size")
body3 = doc.addObject("PartDesign::Body", "Body002")

# Sketch on XY plane
sketch7 = doc.addObject("Sketcher::SketchObject", "Sketch006")
body3.addObject(sketch7)
sketch7.AttachmentSupport = (doc.getObject("XY_Plane002"), [""])
sketch7.MapMode = "FlatFace"
sketch7.addGeometry([
    Part.LineSegment(App.Vector(-72.5, 37.179889, 0), App.Vector(-72.5, 27.179889, 0)),  # 0
    Part.LineSegment(App.Vector(-72.5, 27.179889, 0), App.Vector(72.5, 27.179889, 0)),  # 1
    Part.LineSegment(App.Vector(72.5, 27.179889, 0), App.Vector(72.5, 37.179889, 0)),  # 2
    Part.LineSegment(App.Vector(72.5, 37.179889, 0), App.Vector(-72.5, 37.179889, 0)),  # 3
    Part.LineSegment(App.Vector(-71.035534, 32.179889, 0), App.Vector(-67.5, 35.715423, 0)),  # 4
    Part.LineSegment(App.Vector(-67.5, 35.715423, 0), App.Vector(-63.964466, 32.179889, 0)),  # 5
    Part.LineSegment(App.Vector(-63.964466, 32.179889, 0), App.Vector(-67.5, 28.644355, 0)),  # 6
    Part.LineSegment(App.Vector(-67.5, 28.644355, 0), App.Vector(-71.035534, 32.179889, 0)),  # 7
    Part.LineSegment(App.Vector(67.5, 28.644355, 0), App.Vector(63.964466, 32.179889, 0)),  # 8
    Part.LineSegment(App.Vector(63.964466, 32.179889, 0), App.Vector(67.5, 35.715423, 0)),  # 9
    Part.LineSegment(App.Vector(67.5, 35.715423, 0), App.Vector(71.035534, 32.179889, 0)),  # 10
    Part.LineSegment(App.Vector(71.035534, 32.179889, 0), App.Vector(67.5, 28.644355, 0)),  # 11
], False)
sketch7.addConstraint([
    Sketcher.Constraint("Coincident", 0, 2, 1, 1),
    Sketcher.Constraint("Coincident", 1, 2, 2, 1),
    Sketcher.Constraint("Coincident", 2, 2, 3, 1),
    Sketcher.Constraint("Coincident", 3, 2, 0, 1),
    Sketcher.Constraint("Coincident", 4, 2, 5, 1),
    Sketcher.Constraint("Coincident", 5, 2, 6, 1),
    Sketcher.Constraint("Coincident", 6, 2, 7, 1),
    Sketcher.Constraint("Coincident", 7, 2, 4, 1),
    Sketcher.Constraint("Coincident", 8, 2, 9, 1),
    Sketcher.Constraint("Coincident", 9, 2, 10, 1),
    Sketcher.Constraint("Coincident", 10, 2, 11, 1),
    Sketcher.Constraint("Coincident", 11, 2, 8, 1),
    Sketcher.Constraint("Vertical", 0),
    Sketcher.Constraint("Horizontal", 1),
    Sketcher.Constraint("Vertical", 2),
    Sketcher.Constraint("Horizontal", 3),
    Sketcher.Constraint("Symmetric", 5, 2, 8, 2, -2),
    Sketcher.Constraint("Symmetric", 4, 2, 9, 2, -2),
    Sketcher.Constraint("Symmetric", 7, 2, 10, 2, -2),
    Sketcher.Constraint("Symmetric", 6, 2, 11, 2, -2),
    Sketcher.Constraint("Perpendicular", 4, 5),
    Sketcher.Constraint("Perpendicular", 5, 6),
    Sketcher.Constraint("Perpendicular", 6, 7),
    Sketcher.Constraint("Parallel", 7, 8),
    Sketcher.Constraint("Horizontal", 5, 2, 7, 2),
    Sketcher.Constraint("DistanceX", 1, 1, 1, 2, Q("145 mm")),
    Sketcher.Constraint("DistanceY", 0, 2, 0, 1, Q("10 mm")),
    Sketcher.Constraint("Distance", 4, Q("5 mm")),
    Sketcher.Constraint("DistanceX", 3, 2, 4, 2, Q("5 mm")),
    Sketcher.Constraint("DistanceY", 5, 2, 3, 2, Q("5 mm")),
    Sketcher.Constraint("DistanceX", 9, 2, 2, 2, Q("5 mm")),
    Sketcher.Constraint("DistanceY", -1, 1, 0, 2, Q("27.179889 mm")),
])
sketch7.setExpression("Constraints[25]", "Params.sketch7_width")
sketch7.setExpression("Constraints[26]", "Params.sketch7_height")
sketch7.setExpression("Constraints[27]", "Params.sketch7_length")
pad3 = doc.addObject("PartDesign::Pad", "Pad002")
body3.addObject(pad3)
pad3.Profile = sketch7
pad3.setExpression("Length", "Params.pad3_length")
body4 = doc.addObject("PartDesign::Body", "Body003")

# Sketch on XY plane
sketch8 = doc.addObject("Sketcher::SketchObject", "Sketch007")
body4.addObject(sketch8)
sketch8.AttachmentSupport = (doc.getObject("XY_Plane003"), [""])
sketch8.MapMode = "FlatFace"
sketch8.addGeometry([
    Part.LineSegment(App.Vector(-72.5, -58.135419, 0), App.Vector(-72.5, -68.135419, 0)),  # 0
    Part.LineSegment(App.Vector(-72.5, -68.135419, 0), App.Vector(72.5, -68.135419, 0)),  # 1
    Part.LineSegment(App.Vector(72.5, -68.135419, 0), App.Vector(72.5, -58.135419, 0)),  # 2
    Part.LineSegment(App.Vector(72.5, -58.135419, 0), App.Vector(-72.5, -58.135419, 0)),  # 3
    Part.LineSegment(App.Vector(-70.327853, -63.192425, 0), App.Vector(-67.557006, -60.307567, 0)),  # 4
    Part.LineSegment(App.Vector(-67.557006, -60.307567, 0), App.Vector(-64.672147, -63.078413, 0)),  # 5
    Part.LineSegment(App.Vector(-64.672147, -63.078413, 0), App.Vector(-67.442994, -65.963272, 0)),  # 6
    Part.LineSegment(App.Vector(-67.442994, -65.963272, 0), App.Vector(-70.327853, -63.192425, 0)),  # 7
    Part.LineSegment(App.Vector(67.442994, -65.963272, 0), App.Vector(64.672147, -63.078413, 0)),  # 8
    Part.LineSegment(App.Vector(64.672147, -63.078413, 0), App.Vector(67.557006, -60.307567, 0)),  # 9
    Part.LineSegment(App.Vector(67.557006, -60.307567, 0), App.Vector(70.327853, -63.192425, 0)),  # 10
    Part.LineSegment(App.Vector(70.327853, -63.192425, 0), App.Vector(67.442994, -65.963272, 0)),  # 11
], False)
sketch8.addConstraint([
    Sketcher.Constraint("Coincident", 0, 2, 1, 1),
    Sketcher.Constraint("Coincident", 1, 2, 2, 1),
    Sketcher.Constraint("Coincident", 2, 2, 3, 1),
    Sketcher.Constraint("Coincident", 3, 2, 0, 1),
    Sketcher.Constraint("Coincident", 4, 2, 5, 1),
    Sketcher.Constraint("Coincident", 5, 2, 6, 1),
    Sketcher.Constraint("Coincident", 6, 2, 7, 1),
    Sketcher.Constraint("Coincident", 7, 2, 4, 1),
    Sketcher.Constraint("Coincident", 8, 2, 9, 1),
    Sketcher.Constraint("Coincident", 9, 2, 10, 1),
    Sketcher.Constraint("Coincident", 10, 2, 11, 1),
    Sketcher.Constraint("Coincident", 11, 2, 8, 1),
    Sketcher.Constraint("Vertical", 0),
    Sketcher.Constraint("Horizontal", 1),
    Sketcher.Constraint("Vertical", 2),
    Sketcher.Constraint("Horizontal", 3),
    Sketcher.Constraint("Symmetric", 5, 2, 8, 2, -2),
    Sketcher.Constraint("Symmetric", 4, 2, 9, 2, -2),
    Sketcher.Constraint("Symmetric", 7, 2, 10, 2, -2),
    Sketcher.Constraint("Symmetric", 6, 2, 11, 2, -2),
    Sketcher.Constraint("Perpendicular", 4, 5),
    Sketcher.Constraint("Perpendicular", 5, 6),
    Sketcher.Constraint("Perpendicular", 6, 7),
    Sketcher.Constraint("Equal", 4, 5),
    Sketcher.Constraint("DistanceX", 1, 1, 1, 2, Q("145 mm")),
    Sketcher.Constraint("DistanceY", 0, 2, 0, 1, Q("10 mm")),
    Sketcher.Constraint("Distance", 4, Q("4 mm")),
    Sketcher.Constraint("DistanceX", 5, 2, 10, 2, Q("135 mm")),
    Sketcher.Constraint("DistanceX", 0, 2, -1, 1, Q("72.5 mm")),
    Sketcher.Constraint("DistanceY", 0, 2, -1, 1, Q("68.135419 mm")),
    Sketcher.Constraint("DistanceY", 4, 2, 3, 2, Q("2.172148 mm")),
    Sketcher.Constraint("DistanceX", 4, 2, 5, 2, Q("2.884859 mm")),
])
sketch8.setExpression("Constraints[24]", "Params.sketch8_width")
sketch8.setExpression("Constraints[25]", "Params.sketch8_height")
sketch8.setExpression("Constraints[26]", "Params.sketch8_length")
pad4 = doc.addObject("PartDesign::Pad", "Pad003")
body4.addObject(pad4)
pad4.Profile = sketch8
pad4.setExpression("Length", "Params.pad4_length")
doc.recompute()

fillet3 = doc.addObject("PartDesign::Fillet", "Fillet002")
body4.addObject(fillet3)
fillet3.Base = (pad4, edges_at(pad4, [
    (-72.5, -68.135, 1),
    (72.5, -68.135, 1),
    (72.5, -58.135, 1),
    (-72.5, -58.135, 1),
]))
fillet3.setExpression("Radius", "Params.fillet3_radius")

doc.recompute()
